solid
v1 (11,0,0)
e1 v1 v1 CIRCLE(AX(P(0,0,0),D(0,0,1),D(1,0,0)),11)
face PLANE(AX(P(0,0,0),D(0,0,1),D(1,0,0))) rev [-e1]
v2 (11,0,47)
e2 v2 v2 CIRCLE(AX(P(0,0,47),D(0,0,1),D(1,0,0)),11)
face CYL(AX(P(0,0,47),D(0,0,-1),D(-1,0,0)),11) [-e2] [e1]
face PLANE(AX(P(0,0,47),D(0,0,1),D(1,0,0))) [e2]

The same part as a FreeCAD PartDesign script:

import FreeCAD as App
import Part
import Sketcher
Q = App.Units.Quantity

doc = App.newDocument("Part")
body = doc.addObject("PartDesign::Body", "Body")

sketch1 = body.newObject("Sketcher::SketchObject", "Sketch")
sketch1.AttachmentSupport = (doc.getObject("XY_Plane"), [""])
sketch1.MapMode = "FlatFace"
sketch1.addGeometry(Part.Circle(App.Vector(0, 0, 0), App.Vector(0, 0, 1), 11), False)
sketch1.addConstraint(Sketcher.Constraint("Coincident", 0, 3, -1, 1))
sketch1.addConstraint(Sketcher.Constraint("Diameter", 0, Q("22 mm")))
pad1 = body.newObject("PartDesign::Pad", "Pad")
pad1.Profile = sketch1
pad1.Length = 47

doc.recompute()
